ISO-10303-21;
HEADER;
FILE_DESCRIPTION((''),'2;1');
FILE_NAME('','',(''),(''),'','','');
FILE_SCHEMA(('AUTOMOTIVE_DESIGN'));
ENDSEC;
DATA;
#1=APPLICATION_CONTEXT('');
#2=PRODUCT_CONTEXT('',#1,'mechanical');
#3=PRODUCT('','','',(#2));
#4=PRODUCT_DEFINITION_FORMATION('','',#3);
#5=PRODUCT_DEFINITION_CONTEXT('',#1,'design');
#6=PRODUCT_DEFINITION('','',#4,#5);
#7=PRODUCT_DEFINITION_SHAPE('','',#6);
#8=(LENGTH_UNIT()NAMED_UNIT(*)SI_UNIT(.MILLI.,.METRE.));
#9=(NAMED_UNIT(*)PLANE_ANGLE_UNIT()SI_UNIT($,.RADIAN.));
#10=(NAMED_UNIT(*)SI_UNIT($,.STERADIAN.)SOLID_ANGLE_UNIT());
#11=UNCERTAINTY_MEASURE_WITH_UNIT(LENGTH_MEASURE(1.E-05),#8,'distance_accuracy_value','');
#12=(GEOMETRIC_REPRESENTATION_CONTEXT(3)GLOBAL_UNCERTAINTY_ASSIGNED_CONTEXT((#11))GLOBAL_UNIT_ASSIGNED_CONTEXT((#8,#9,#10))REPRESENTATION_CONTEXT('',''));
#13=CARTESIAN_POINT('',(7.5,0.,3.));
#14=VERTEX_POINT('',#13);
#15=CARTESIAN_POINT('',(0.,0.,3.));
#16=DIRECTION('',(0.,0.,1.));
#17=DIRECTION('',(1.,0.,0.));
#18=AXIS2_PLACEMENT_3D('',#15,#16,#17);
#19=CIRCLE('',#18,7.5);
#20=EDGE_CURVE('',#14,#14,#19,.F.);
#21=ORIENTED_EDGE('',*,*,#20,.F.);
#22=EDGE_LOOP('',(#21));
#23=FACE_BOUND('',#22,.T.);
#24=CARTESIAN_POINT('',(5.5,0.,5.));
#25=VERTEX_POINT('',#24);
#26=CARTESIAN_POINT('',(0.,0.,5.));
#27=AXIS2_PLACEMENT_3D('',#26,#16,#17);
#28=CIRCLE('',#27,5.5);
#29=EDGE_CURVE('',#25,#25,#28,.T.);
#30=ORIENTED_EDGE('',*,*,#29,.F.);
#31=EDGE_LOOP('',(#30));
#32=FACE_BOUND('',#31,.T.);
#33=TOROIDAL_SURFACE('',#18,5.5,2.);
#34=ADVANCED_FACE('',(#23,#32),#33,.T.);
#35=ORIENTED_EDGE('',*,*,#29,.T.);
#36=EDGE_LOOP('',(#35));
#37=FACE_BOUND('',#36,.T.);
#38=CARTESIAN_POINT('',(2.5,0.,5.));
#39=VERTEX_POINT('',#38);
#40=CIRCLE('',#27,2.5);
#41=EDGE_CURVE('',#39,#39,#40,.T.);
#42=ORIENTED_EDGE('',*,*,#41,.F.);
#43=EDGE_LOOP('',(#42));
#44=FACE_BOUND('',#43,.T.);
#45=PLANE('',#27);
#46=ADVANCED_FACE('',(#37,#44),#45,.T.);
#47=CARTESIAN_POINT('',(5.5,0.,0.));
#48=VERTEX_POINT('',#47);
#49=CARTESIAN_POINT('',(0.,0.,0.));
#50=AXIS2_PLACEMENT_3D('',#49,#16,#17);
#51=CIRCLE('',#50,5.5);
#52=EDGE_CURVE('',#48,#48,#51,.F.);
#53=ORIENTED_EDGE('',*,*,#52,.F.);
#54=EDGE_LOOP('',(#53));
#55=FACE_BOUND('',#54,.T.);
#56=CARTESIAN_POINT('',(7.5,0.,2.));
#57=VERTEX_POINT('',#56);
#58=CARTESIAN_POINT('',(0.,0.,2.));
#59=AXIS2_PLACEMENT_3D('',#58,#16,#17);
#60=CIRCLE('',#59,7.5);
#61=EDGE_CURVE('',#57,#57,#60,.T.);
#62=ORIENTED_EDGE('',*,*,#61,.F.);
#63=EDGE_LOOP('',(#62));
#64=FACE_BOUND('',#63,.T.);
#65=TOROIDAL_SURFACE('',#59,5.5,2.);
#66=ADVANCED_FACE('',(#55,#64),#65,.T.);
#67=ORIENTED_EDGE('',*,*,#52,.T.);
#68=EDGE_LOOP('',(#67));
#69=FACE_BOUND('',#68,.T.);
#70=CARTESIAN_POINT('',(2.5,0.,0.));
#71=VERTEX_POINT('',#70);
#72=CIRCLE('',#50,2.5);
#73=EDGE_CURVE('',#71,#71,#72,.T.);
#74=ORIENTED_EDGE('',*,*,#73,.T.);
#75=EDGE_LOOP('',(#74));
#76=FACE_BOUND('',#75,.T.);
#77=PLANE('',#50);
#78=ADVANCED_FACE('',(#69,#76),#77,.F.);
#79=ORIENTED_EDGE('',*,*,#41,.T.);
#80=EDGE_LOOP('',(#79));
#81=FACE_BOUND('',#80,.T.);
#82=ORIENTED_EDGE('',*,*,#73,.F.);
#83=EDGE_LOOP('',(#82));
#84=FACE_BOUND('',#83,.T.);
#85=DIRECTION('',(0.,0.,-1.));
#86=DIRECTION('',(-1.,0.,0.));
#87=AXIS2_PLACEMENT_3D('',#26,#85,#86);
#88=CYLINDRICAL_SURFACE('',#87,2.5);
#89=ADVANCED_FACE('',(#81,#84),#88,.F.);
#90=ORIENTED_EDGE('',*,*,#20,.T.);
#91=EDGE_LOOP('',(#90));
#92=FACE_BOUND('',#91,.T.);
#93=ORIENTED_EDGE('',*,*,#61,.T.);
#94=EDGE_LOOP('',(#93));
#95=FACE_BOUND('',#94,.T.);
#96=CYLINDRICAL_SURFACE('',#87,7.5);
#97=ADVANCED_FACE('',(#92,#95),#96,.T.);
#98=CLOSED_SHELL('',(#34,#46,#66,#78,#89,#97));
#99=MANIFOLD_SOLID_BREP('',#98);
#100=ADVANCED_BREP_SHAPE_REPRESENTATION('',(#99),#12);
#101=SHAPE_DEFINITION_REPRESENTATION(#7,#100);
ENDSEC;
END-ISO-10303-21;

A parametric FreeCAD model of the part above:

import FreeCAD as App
import Part
import Sketcher
Q = App.Units.Quantity


def edges_at(feature, points):
    """Names of the edges that pass closest to the given points."""
    edges = feature.Shape.Edges
    near = lambda p: min(range(len(edges)), key=lambda i: edges[i].distToShape(Part.Vertex(*p))[0])
    return sorted({f"Edge{near(p) + 1}" for p in points})

doc = App.newDocument("Part")
body = doc.addObject("PartDesign::Body", "Body")

# Sketch on XY plane
sketch1 = body.newObject("Sketcher::SketchObject", "Sketch")
sketch1.AttachmentSupport = (doc.getObject("XY_Plane"), [""])
sketch1.MapMode = "FlatFace"
sketch1.addGeometry(Part.Circle(App.Vector(0, 0, 0), App.Vector(0, 0, 1), 7.5), False)
sketch1.addGeometry(Part.Circle(App.Vector(0, 0, 0), App.Vector(0, 0, 1), 2.5), False)
sketch1.addConstraint(Sketcher.Constraint("Coincident", 0, 3, -1, 1))
sketch1.addConstraint(Sketcher.Constraint("Coincident", 1, 3, -1, 1))
sketch1.addConstraint(Sketcher.Constraint("Diameter", 0, Q("15 mm")))
sketch1.addConstraint(Sketcher.Constraint("Diameter", 1, Q("5 mm")))
pad1 = body.newObject("PartDesign::Pad", "Pad")
pad1.Profile = sketch1
pad1.Length = 5
doc.recompute()

fillet = body.newObject("PartDesign::Fillet", "Fillet")
fillet.Base = (pad1, edges_at(pad1, [(-7.5, 0, 0), (-7.5, 0, 5)]))
fillet.Radius = 2

doc.recompute()
